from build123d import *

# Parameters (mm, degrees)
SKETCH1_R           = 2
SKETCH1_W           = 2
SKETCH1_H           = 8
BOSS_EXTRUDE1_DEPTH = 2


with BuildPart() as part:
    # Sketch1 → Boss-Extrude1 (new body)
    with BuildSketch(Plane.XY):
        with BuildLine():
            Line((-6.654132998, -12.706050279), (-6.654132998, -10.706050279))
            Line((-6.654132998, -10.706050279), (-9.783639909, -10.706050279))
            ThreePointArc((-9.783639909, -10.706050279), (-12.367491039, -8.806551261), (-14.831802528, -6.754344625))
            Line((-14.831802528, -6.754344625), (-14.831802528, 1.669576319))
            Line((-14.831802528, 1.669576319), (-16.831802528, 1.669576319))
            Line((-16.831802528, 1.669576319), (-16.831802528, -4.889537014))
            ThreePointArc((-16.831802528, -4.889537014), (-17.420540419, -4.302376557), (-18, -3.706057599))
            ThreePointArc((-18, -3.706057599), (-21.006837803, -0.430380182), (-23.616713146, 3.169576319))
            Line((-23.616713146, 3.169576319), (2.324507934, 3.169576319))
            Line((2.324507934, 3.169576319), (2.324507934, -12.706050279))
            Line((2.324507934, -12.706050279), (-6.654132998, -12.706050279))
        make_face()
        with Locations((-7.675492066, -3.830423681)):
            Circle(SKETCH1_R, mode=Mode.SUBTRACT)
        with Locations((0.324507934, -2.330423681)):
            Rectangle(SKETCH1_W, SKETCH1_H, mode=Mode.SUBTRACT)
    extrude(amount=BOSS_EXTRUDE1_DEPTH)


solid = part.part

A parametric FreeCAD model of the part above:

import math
import FreeCAD as App
import Part
import Sketcher

doc = App.newDocument("Part")
body = doc.addObject("PartDesign::Body", "Body")

sketch1 = doc.addObject("Sketcher::SketchObject", "Sketch")
body.addObject(sketch1)
sketch1.AttachmentSupport = (doc.XY_Plane, [""])
sketch1.MapMode = "FlatFace"
sketch1.addGeometry(Part.LineSegment(App.Vector(-6.654133, -10.70605, 0), App.Vector(-6.654133, -12.70605, 0)), False)
sketch1.addGeometry(Part.LineSegment(App.Vector(-6.654133, -12.70605, 0), App.Vector(2.324508, -12.70605, 0)), False)
sketch1.addGeometry(Part.LineSegment(App.Vector(2.324508, -12.70605, 0), App.Vector(2.324508, 3.169576, 0)), False)
sketch1.addGeometry(Part.LineSegment(App.Vector(2.324508, 3.169576, 0), App.Vector(-23.616713, 3.169576, 0)), False)
sketch1.addGeometry(Part.ArcOfCircle(Part.Circle(App.Vector(8.864955, 23.971921, 0), App.Vector(0, 0, 1), 38.571962), math.radians(-147.363144), math.radians(-134.146005)), False)
sketch1.addGeometry(Part.ArcOfCircle(Part.Circle(App.Vector(20.320968, 32.951786, 0), App.Vector(0, 0, 1), 53.031068), math.radians(-136.270684), math.radians(-134.473958)), False)
sketch1.addGeometry(Part.LineSegment(App.Vector(-16.831803, -4.889537, 0), App.Vector(-16.831803, 1.669576, 0)), False)
sketch1.addGeometry(Part.LineSegment(App.Vector(-16.831803, 1.669576, 0), App.Vector(-14.831803, 1.669576, 0)), False)
sketch1.addGeometry(Part.LineSegment(App.Vector(-14.831803, 1.669576, 0), App.Vector(-14.831803, -6.754345, 0)), False)
sketch1.addGeometry(Part.ArcOfCircle(Part.Circle(App.Vector(20.320969, 32.951787, 0), App.Vector(0, 0, 1), 53.031069), math.radians(-131.519221), math.radians(-124.588514)), False)
sketch1.addGeometry(Part.LineSegment(App.Vector(-9.78364, -10.70605, 0), App.Vector(-6.654133, -10.70605, 0)), False)
sketch1.addGeometry(Part.Circle(App.Vector(-7.675492, -3.830424, 0), App.Vector(0, 0, 1), 2), False)
sketch1.addGeometry(Part.LineSegment(App.Vector(-0.675492, -6.330424, 0), App.Vector(-0.675492, 1.669576, 0)), False)
sketch1.addGeometry(Part.LineSegment(App.Vector(-0.675492, 1.669576, 0), App.Vector(1.324508, 1.669576, 0)), False)
sketch1.addGeometry(Part.LineSegment(App.Vector(1.324508, 1.669576, 0), App.Vector(1.324508, -6.330424, 0)), False)
sketch1.addGeometry(Part.LineSegment(App.Vector(1.324508, -6.330424, 0), App.Vector(-0.675492, -6.330424, 0)), False)
sketch1.addConstraint(Sketcher.Constraint("Coincident", 0, 2, 1, 1))
sketch1.addConstraint(Sketcher.Constraint("Coincident", 1, 2, 2, 1))
sketch1.addConstraint(Sketcher.Constraint("Coincident", 2, 2, 3, 1))
sketch1.addConstraint(Sketcher.Constraint("Coincident", 3, 2, 4, 1))
sketch1.addConstraint(Sketcher.Constraint("Coincident", 4, 2, 5, 1))
sketch1.addConstraint(Sketcher.Constraint("Coincident", 5, 2, 6, 1))
sketch1.addConstraint(Sketcher.Constraint("Coincident", 6, 2, 7, 1))
sketch1.addConstraint(Sketcher.Constraint("Coincident", 7, 2, 8, 1))
sketch1.addConstraint(Sketcher.Constraint("Coincident", 8, 2, 9, 1))
sketch1.addConstraint(Sketcher.Constraint("Coincident", 9, 2, 10, 1))
sketch1.addConstraint(Sketcher.Constraint("Coincident", 10, 2, 0, 1))
sketch1.addConstraint(Sketcher.Constraint("Coincident", 12, 2, 13, 1))
sketch1.addConstraint(Sketcher.Constraint("Coincident", 13, 2, 14, 1))
sketch1.addConstraint(Sketcher.Constraint("Coincident", 14, 2, 15, 1))
sketch1.addConstraint(Sketcher.Constraint("Coincident", 15, 2, 12, 1))
sketch1.addConstraint(Sketcher.Constraint("Vertical", 0))
sketch1.addConstraint(Sketcher.Constraint("Horizontal", 1))
sketch1.addConstraint(Sketcher.Constraint("Vertical", 2))
sketch1.addConstraint(Sketcher.Constraint("Horizontal", 3))
sketch1.addConstraint(Sketcher.Constraint("Vertical", 6))
sketch1.addConstraint(Sketcher.Constraint("Horizontal", 7))
sketch1.addConstraint(Sketcher.Constraint("Vertical", 8))
sketch1.addConstraint(Sketcher.Constraint("Horizontal", 10))
sketch1.addConstraint(Sketcher.Constraint("Vertical", 12))
sketch1.addConstraint(Sketcher.Constraint("Horizontal", 13))
sketch1.addConstraint(Sketcher.Constraint("Vertical", 14))
sketch1.addConstraint(Sketcher.Constraint("Horizontal", 15))
sketch1.addConstraint(Sketcher.Constraint("Coincident", 9, 3, 5, 3))
sketch1.addConstraint(Sketcher.Constraint("Equal", 5, 9))
sketch1.addConstraint(Sketcher.Constraint("Horizontal", 7, 2, 12, 2))
sketch1.addConstraint(Sketcher.Constraint("Equal", 7, 13))
sketch1.addConstraint(Sketcher.Constraint("Equal", 15, 0))
sketch1.addConstraint(Sketcher.Constraint("Diameter", 11, 4.0))
sketch1.addConstraint(Sketcher.Constraint("DistanceX", 7, 1, 7, 2, 2.0))
sketch1.addConstraint(Sketcher.Constraint("DistanceY", 12, 1, 12, 2, 8.0))
sketch1.addConstraint(Sketcher.Constraint("DistanceX", 4, 2, -1, 1, 18.0))
sketch1.addConstraint(Sketcher.Constraint("DistanceX", 11, 3, 1, 2, 10.0))
sketch1.addConstraint(Sketcher.Constraint("DistanceY", 11, 3, 2, 2, 7.0))
sketch1.addConstraint(Sketcher.Constraint("DistanceX", 12, 2, 2, 2, 3.0))
sketch1.addConstraint(Sketcher.Constraint("DistanceY", 6, 2, 3, 2, 1.5))
sketch1.addConstraint(Sketcher.Constraint("Radius", 9, 53.031069))
sketch1.addConstraint(Sketcher.Constraint("Radius", 4, 38.571962))
sketch1.addConstraint(Sketcher.Constraint("DistanceX", 1, 1, 1, 2, 8.978641))
sketch1.addConstraint(Sketcher.Constraint("DistanceX", 3, 2, 3, 1, 25.941221))
sketch1.addConstraint(Sketcher.Constraint("DistanceY", 8, 2, 8, 1, 8.423921))
sketch1.addConstraint(Sketcher.Constraint("DistanceX", 0, 2, 5, 3, 26.975101))
sketch1.addConstraint(Sketcher.Constraint("DistanceX", 10, 1, 10, 2, 3.129507))
sketch1.addConstraint(Sketcher.Constraint("DistanceY", 2, 1, 2, 2, 15.875627))
sketch1.addConstraint(Sketcher.Constraint("DistanceY", -1, 1, 4, 3, 23.971921))
sketch1.addConstraint(Sketcher.Constraint("DistanceX", -1, 1, 5, 3, 20.320968))
pad1 = doc.addObject("PartDesign::Pad", "Pad")
body.addObject(pad1)
pad1.Profile = sketch1
pad1.Length = 2

doc.recompute()
